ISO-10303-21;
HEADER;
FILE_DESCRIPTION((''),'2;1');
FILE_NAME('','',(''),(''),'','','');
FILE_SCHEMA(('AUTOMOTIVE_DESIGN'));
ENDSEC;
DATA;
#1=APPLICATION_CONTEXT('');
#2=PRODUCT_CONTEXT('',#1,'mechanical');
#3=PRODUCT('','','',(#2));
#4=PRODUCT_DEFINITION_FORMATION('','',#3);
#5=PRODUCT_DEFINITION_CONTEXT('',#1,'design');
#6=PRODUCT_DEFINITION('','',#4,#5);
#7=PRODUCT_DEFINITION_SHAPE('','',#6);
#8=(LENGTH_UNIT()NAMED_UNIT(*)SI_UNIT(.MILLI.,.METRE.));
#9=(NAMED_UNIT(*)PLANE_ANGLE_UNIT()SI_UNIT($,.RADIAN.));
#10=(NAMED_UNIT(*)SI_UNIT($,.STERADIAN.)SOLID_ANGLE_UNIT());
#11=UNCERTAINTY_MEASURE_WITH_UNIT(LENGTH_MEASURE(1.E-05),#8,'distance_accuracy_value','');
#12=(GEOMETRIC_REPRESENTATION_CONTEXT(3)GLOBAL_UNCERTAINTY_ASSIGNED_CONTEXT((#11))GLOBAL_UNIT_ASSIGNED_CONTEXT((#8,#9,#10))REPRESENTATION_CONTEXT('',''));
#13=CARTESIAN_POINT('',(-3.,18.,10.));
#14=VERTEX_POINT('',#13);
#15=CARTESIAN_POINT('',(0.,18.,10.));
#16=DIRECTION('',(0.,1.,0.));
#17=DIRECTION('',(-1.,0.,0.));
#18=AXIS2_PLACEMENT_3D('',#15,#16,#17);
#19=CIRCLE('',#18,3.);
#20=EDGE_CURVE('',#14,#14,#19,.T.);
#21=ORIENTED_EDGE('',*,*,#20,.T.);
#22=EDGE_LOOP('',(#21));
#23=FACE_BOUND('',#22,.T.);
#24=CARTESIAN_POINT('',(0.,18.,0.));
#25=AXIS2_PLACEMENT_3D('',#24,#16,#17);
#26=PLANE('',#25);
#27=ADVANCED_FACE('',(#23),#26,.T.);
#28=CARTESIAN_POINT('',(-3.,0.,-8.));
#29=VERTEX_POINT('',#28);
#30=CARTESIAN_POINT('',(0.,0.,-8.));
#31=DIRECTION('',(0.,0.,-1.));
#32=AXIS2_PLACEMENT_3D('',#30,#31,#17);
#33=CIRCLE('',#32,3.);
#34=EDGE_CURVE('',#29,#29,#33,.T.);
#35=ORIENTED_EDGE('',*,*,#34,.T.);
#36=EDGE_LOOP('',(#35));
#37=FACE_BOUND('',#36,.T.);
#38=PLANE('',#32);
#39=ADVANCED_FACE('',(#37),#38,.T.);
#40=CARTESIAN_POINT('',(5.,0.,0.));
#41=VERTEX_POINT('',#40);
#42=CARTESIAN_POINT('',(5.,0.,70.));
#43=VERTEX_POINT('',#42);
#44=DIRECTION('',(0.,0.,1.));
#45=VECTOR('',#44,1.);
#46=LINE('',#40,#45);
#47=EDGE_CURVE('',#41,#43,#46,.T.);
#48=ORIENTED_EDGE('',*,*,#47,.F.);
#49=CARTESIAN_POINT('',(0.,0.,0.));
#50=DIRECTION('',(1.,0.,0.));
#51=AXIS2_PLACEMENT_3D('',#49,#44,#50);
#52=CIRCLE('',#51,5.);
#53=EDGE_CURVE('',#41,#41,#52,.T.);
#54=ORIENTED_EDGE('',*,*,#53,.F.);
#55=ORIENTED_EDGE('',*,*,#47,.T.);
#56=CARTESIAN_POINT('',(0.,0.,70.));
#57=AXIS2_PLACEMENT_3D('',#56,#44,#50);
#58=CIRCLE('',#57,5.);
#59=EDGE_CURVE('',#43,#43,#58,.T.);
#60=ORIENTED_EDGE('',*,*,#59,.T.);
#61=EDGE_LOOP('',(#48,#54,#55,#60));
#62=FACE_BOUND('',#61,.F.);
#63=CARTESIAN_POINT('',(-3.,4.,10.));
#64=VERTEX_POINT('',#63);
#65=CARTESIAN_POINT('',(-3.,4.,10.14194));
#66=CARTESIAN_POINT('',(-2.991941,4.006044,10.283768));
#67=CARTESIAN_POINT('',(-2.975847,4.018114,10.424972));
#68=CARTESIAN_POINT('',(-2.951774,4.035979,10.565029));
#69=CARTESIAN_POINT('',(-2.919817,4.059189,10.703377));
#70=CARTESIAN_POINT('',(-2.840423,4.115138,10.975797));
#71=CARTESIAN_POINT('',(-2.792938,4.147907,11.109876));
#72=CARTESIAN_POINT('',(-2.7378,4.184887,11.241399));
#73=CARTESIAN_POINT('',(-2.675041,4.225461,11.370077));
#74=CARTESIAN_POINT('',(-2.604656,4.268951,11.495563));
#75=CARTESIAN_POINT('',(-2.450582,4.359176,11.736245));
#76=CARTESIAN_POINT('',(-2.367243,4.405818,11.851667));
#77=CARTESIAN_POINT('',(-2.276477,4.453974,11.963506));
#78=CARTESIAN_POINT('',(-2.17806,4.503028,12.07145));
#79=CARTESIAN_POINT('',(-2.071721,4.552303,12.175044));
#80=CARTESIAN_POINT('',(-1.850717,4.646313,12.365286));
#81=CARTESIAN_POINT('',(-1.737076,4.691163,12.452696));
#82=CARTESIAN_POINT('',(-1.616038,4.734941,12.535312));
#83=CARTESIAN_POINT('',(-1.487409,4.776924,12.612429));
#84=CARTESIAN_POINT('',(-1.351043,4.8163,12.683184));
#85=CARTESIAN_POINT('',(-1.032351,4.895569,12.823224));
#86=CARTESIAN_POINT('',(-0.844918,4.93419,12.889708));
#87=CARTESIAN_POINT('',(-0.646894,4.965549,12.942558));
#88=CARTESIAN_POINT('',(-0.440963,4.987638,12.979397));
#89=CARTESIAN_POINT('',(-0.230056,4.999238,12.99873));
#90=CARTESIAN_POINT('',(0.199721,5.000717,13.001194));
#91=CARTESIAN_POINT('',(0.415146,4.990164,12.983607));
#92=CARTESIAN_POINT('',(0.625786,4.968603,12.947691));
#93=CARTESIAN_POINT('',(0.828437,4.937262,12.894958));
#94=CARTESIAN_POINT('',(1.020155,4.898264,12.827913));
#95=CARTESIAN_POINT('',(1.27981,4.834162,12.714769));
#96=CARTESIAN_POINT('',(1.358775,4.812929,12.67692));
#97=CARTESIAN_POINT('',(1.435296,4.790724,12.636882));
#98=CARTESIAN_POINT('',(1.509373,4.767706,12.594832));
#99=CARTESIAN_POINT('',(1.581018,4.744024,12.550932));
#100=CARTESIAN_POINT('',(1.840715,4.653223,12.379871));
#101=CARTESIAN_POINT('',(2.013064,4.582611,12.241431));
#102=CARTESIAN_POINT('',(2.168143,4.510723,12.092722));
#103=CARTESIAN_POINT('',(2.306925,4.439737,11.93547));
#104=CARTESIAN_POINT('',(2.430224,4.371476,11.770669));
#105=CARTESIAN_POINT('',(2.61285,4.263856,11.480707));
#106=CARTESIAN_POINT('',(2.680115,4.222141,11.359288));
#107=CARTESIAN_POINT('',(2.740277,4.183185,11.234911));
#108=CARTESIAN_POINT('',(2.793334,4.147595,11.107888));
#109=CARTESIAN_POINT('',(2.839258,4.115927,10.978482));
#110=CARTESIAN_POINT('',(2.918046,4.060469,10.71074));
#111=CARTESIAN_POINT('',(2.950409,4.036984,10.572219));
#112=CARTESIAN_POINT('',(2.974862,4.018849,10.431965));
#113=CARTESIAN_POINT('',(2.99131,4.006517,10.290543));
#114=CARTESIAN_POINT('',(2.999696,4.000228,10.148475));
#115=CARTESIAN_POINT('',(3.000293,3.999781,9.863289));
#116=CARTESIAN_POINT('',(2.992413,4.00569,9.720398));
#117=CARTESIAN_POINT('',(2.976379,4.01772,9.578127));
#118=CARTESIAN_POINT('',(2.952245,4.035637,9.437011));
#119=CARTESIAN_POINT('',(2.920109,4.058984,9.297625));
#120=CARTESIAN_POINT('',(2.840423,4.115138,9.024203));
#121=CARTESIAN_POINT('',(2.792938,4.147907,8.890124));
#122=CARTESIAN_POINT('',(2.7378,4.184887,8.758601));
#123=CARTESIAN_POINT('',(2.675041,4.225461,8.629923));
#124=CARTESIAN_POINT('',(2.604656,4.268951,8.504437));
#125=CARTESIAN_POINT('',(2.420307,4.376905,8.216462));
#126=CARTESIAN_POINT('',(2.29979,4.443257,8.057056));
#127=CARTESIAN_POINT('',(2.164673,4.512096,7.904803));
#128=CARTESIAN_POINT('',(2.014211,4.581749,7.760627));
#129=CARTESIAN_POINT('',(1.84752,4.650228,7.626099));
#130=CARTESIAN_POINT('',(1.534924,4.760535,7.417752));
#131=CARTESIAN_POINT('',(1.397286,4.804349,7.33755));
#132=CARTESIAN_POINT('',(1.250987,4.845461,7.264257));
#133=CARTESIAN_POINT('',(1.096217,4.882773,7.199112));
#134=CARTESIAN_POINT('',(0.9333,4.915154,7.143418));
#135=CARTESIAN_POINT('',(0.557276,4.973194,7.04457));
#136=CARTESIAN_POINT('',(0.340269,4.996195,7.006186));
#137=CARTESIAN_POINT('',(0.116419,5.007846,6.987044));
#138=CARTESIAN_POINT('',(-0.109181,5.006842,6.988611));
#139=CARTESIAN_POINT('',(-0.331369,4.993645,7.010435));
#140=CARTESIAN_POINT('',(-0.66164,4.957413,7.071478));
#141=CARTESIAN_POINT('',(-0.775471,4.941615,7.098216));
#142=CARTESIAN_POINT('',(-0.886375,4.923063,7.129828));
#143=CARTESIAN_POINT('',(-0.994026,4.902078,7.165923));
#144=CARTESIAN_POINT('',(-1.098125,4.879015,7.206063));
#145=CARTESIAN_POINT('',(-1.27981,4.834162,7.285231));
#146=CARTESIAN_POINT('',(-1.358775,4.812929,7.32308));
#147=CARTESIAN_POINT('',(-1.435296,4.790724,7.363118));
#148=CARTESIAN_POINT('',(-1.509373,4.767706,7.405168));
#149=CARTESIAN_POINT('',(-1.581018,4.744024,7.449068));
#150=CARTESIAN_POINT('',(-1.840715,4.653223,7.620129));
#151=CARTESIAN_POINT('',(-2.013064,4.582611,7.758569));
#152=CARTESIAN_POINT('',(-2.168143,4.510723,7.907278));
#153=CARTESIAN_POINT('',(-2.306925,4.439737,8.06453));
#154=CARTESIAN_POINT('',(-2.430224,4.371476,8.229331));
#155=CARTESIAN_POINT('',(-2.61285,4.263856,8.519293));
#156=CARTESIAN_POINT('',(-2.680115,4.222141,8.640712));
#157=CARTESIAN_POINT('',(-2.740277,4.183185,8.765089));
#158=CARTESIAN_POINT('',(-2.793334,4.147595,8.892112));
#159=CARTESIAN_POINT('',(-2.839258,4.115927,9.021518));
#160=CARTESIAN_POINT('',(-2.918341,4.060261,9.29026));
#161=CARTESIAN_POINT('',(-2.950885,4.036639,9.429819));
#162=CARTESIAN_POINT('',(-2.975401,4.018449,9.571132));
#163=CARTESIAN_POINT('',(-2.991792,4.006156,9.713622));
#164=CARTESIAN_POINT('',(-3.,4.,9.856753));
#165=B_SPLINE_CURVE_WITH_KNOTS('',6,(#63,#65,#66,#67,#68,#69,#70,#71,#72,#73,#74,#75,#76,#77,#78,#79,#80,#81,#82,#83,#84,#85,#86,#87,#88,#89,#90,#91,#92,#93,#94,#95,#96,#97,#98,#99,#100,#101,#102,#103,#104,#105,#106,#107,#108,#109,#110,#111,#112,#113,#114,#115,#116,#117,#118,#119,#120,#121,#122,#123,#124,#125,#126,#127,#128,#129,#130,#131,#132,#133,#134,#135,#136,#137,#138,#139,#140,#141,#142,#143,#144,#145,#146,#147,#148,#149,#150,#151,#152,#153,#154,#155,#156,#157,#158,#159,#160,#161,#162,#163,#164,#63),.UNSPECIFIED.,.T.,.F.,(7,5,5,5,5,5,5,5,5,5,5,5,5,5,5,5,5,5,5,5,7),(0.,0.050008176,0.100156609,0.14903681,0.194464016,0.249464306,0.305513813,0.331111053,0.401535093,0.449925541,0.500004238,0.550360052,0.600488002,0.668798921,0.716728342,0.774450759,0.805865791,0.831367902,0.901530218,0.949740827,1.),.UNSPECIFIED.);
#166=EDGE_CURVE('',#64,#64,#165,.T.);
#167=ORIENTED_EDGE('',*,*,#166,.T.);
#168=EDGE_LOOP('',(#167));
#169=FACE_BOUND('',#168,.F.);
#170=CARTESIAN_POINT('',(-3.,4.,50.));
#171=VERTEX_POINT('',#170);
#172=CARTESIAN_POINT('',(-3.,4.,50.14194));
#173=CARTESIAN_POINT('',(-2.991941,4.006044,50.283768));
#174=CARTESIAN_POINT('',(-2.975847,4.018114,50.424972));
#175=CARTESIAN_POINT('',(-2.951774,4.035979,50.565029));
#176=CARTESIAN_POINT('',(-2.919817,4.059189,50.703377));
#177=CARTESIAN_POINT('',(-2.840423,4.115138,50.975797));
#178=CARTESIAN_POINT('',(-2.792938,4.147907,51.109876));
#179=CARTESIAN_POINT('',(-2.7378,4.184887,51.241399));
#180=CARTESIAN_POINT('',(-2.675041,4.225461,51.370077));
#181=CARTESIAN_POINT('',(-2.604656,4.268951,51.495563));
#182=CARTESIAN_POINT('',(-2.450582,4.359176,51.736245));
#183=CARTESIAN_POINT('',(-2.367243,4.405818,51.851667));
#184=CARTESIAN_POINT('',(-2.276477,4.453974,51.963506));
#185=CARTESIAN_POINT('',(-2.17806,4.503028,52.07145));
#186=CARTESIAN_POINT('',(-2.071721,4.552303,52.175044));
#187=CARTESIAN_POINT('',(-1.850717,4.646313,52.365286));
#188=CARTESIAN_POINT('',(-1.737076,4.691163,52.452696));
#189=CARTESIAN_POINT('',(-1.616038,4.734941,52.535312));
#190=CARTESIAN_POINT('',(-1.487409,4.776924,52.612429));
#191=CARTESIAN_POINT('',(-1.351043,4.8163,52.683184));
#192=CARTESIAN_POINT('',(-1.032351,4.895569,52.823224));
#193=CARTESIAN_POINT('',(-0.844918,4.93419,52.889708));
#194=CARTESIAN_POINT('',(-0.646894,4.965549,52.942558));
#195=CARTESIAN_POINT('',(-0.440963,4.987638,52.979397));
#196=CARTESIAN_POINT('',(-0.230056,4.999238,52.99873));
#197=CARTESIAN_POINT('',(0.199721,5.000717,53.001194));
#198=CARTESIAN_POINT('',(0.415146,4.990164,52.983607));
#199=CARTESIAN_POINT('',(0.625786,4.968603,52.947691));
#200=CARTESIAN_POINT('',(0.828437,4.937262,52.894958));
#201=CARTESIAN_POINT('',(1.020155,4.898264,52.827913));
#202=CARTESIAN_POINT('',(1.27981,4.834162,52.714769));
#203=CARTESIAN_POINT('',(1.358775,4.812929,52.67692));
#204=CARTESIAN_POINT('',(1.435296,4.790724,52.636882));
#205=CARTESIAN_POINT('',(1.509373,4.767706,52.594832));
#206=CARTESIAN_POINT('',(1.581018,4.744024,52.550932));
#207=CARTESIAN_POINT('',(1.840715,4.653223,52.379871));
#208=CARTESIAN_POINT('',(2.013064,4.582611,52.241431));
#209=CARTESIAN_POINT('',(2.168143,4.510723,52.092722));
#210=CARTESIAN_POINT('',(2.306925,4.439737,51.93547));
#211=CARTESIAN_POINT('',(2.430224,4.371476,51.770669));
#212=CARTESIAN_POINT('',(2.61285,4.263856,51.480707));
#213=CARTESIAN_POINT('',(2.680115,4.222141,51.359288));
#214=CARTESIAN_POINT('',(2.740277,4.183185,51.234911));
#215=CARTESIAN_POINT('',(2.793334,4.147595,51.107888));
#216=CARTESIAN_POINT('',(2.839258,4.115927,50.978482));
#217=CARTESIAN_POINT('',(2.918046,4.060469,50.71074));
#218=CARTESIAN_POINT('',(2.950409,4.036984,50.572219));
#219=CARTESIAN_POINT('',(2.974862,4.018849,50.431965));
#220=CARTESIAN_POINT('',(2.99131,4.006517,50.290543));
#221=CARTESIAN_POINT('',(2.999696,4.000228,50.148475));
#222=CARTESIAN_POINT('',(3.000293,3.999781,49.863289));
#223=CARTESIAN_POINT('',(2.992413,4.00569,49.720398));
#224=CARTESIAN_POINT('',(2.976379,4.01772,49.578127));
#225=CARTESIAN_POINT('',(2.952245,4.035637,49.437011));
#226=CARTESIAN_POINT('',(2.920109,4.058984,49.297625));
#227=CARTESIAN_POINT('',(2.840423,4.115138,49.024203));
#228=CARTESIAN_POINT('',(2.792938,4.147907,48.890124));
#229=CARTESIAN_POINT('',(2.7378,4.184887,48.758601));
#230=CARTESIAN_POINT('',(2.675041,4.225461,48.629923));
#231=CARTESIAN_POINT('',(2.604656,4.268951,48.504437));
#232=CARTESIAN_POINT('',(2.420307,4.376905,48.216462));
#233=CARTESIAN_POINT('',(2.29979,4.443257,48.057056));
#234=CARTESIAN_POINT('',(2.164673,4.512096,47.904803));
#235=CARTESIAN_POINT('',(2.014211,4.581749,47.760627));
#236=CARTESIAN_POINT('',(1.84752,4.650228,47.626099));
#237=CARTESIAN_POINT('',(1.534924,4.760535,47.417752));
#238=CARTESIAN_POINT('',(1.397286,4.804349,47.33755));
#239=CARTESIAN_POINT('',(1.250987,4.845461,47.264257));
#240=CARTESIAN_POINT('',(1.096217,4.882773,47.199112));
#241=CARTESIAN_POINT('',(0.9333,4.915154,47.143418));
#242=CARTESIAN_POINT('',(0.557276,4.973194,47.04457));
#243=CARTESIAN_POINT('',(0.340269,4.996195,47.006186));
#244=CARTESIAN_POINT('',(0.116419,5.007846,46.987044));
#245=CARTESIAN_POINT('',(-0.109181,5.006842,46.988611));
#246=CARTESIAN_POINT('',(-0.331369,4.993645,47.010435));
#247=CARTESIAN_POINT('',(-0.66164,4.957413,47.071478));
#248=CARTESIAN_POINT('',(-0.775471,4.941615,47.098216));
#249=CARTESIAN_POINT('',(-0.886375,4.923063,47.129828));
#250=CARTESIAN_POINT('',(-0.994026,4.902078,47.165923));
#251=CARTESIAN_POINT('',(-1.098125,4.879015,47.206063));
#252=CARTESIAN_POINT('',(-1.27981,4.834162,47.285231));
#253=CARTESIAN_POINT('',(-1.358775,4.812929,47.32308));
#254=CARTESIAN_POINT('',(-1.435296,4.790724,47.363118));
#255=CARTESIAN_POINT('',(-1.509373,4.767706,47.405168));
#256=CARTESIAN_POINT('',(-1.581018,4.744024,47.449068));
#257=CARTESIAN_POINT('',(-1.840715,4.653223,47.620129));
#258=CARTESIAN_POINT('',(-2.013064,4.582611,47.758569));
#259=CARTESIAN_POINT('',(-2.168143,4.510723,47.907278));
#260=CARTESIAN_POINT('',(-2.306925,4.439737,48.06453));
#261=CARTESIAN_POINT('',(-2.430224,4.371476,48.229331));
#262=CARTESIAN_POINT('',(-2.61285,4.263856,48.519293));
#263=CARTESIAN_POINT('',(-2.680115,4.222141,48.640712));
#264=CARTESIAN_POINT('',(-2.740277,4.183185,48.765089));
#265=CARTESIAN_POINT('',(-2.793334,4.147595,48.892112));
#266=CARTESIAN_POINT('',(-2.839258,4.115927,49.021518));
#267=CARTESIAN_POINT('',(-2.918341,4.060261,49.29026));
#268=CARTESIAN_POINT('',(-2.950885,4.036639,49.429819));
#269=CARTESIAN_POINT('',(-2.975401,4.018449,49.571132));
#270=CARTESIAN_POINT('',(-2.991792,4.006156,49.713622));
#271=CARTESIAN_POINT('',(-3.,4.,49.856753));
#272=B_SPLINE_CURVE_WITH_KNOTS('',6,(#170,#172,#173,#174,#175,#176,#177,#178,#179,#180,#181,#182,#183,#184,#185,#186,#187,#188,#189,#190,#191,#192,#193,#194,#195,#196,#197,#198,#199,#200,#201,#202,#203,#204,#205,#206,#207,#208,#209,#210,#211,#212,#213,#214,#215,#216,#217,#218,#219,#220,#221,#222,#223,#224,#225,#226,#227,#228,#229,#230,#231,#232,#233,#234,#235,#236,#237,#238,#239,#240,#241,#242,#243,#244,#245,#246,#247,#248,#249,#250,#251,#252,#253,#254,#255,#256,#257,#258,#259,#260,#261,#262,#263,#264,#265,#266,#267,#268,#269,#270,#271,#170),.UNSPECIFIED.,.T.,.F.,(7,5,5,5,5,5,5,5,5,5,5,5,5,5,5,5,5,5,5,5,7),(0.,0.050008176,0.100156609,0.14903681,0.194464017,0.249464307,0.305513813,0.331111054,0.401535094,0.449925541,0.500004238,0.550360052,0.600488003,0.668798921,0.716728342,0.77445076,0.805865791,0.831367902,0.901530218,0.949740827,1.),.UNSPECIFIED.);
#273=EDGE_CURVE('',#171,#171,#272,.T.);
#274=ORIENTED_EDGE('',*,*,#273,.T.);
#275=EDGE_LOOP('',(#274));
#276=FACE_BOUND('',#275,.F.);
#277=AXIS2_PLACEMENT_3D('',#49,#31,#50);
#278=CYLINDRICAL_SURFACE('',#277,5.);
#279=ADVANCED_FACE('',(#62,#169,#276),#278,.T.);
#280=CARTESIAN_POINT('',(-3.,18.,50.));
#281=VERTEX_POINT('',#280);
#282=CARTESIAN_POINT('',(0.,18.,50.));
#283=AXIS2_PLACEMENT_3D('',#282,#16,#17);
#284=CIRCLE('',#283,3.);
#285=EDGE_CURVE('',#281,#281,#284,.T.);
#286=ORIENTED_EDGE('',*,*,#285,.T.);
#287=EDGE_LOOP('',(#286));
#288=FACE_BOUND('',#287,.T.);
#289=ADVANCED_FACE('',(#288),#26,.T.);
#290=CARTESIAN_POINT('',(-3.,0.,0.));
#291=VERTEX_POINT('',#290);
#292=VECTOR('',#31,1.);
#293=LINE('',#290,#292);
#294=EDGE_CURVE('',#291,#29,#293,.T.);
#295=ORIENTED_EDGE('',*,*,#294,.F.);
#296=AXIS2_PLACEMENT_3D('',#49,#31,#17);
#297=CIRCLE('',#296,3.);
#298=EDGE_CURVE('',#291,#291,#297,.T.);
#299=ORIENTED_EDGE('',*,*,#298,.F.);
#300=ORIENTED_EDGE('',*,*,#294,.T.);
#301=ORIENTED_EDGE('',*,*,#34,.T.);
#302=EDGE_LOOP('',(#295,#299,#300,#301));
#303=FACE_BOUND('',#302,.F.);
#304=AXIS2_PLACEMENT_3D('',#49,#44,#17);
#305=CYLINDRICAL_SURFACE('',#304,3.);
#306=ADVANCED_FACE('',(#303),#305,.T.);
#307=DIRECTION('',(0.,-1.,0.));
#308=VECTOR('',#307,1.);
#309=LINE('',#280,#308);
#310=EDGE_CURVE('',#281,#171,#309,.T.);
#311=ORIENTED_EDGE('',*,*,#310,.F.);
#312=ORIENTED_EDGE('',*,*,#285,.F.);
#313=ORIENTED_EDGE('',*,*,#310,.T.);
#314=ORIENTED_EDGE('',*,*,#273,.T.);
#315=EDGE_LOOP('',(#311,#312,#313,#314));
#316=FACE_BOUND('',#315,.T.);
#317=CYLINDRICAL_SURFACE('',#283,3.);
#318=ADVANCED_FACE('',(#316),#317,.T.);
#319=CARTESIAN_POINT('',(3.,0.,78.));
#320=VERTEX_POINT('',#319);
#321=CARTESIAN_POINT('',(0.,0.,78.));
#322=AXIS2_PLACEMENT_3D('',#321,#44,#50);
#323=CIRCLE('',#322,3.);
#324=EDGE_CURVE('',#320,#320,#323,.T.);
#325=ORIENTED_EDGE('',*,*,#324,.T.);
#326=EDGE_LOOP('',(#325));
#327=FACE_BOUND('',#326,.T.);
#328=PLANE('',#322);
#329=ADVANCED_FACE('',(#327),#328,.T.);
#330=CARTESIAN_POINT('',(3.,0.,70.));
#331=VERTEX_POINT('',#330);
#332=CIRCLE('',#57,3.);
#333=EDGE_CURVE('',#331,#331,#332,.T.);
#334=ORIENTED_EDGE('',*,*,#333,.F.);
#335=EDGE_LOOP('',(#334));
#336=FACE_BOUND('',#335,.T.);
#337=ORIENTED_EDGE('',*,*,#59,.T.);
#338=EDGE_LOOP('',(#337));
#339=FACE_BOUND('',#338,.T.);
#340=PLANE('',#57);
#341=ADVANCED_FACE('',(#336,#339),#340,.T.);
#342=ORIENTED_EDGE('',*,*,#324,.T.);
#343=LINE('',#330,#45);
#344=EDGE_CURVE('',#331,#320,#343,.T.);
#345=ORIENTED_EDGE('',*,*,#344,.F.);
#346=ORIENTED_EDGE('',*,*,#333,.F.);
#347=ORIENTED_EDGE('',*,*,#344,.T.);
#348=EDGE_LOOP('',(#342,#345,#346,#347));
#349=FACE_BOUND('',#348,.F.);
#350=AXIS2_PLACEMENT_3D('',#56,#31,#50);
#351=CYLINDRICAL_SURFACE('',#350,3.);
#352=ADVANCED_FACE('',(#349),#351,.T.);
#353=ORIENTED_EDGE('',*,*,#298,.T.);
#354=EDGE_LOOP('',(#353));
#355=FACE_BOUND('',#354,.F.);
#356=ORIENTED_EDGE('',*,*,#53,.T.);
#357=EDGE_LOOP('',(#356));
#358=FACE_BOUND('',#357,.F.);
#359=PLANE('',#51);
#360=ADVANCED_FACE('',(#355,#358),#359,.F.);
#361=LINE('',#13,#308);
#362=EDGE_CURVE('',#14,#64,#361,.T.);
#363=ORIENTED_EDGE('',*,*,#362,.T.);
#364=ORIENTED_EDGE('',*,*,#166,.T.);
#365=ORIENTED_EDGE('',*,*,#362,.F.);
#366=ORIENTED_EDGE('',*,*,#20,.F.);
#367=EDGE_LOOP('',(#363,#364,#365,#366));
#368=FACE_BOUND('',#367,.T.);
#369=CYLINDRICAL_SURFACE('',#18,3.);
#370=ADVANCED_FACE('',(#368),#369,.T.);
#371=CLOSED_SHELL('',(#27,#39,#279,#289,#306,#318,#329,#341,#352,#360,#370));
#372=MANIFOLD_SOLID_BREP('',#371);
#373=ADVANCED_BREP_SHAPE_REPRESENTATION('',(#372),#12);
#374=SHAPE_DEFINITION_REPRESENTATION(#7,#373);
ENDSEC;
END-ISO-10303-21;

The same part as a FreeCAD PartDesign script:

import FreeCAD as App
import Part
import Sketcher
from FreeCAD import Vector
Q = App.Units.Quantity

doc = App.newDocument("Part")
body = doc.addObject("PartDesign::Body", "Body")

# Sketch on XY plane
sketch1 = doc.addObject("Sketcher::SketchObject", "Sketch")
body.addObject(sketch1)
sketch1.AttachmentSupport = (doc.XY_Plane, [""])
sketch1.MapMode = "FlatFace"
sketch1.addGeometry(Part.Circle(Vector(0, 0, 0), Vector(0, 0, 1), 5), False)
sketch1.addConstraint(Sketcher.Constraint("Coincident", 0, 3, -1, 1))
sketch1.addConstraint(Sketcher.Constraint("Diameter", 0, Q("10 mm")))
pad1 = doc.addObject("PartDesign::Pad", "Pad")
body.addObject(pad1)
pad1.Profile = sketch1
pad1.Length = 70

# Sketch on XY plane
sketch2 = doc.addObject("Sketcher::SketchObject", "Sketch001")
body.addObject(sketch2)
sketch2.AttachmentSupport = (doc.XY_Plane, [""])
sketch2.MapMode = "FlatFace"
sketch2.AttachmentOffset = App.Placement(Vector(0, 0, 70), App.Rotation())
sketch2.addGeometry(Part.Circle(Vector(0, 0, 0), Vector(0, 0, 1), 3), False)
sketch2.addConstraint(Sketcher.Constraint("Coincident", 0, 3, -1, 1))
sketch2.addConstraint(Sketcher.Constraint("Diameter", 0, Q("6 mm")))
pad2 = doc.addObject("PartDesign::Pad", "Pad001")
body.addObject(pad2)
pad2.Profile = sketch2
pad2.Length = 8

# Sketch on XY plane
sketch3 = doc.addObject("Sketcher::SketchObject", "Sketch002")
body.addObject(sketch3)
sketch3.AttachmentSupport = (doc.XY_Plane, [""])
sketch3.MapMode = "FlatFace"
sketch3.addGeometry(Part.Circle(Vector(0, 0, 0), Vector(0, 0, 1), 3), False)
sketch3.addConstraint(Sketcher.Constraint("Coincident", 0, 3, -1, 1))
sketch3.addConstraint(Sketcher.Constraint("Diameter", 0, Q("6 mm")))
pad3 = doc.addObject("PartDesign::Pad", "Pad002")
body.addObject(pad3)
pad3.Profile = sketch3
pad3.Length = 8
pad3.Reversed = True

# Sketch on XZ plane
sketch4 = doc.addObject("Sketcher::SketchObject", "Sketch003")
body.addObject(sketch4)
sketch4.AttachmentSupport = (doc.XZ_Plane, [""])
sketch4.MapMode = "FlatFace"
sketch4.AttachmentOffset = App.Placement(Vector(0, 0, -18), App.Rotation())
sketch4.addGeometry(Part.Circle(Vector(0, 10, 0), Vector(0, 0, 1), 3), False)
sketch4.addGeometry(Part.Circle(Vector(0, 50, 0), Vector(0, 0, 1), 3), False)
sketch4.addConstraint(Sketcher.Constraint("Equal", 0, 1))
sketch4.addConstraint(Sketcher.Constraint("PointOnObject", 0, 3, -2))
sketch4.addConstraint(Sketcher.Constraint("PointOnObject", 1, 3, -2))
sketch4.addConstraint(Sketcher.Constraint("Diameter", 0, Q("6 mm")))
sketch4.addConstraint(Sketcher.Constraint("DistanceY", -1, 1, 0, 3, Q("10 mm")))
sketch4.addConstraint(Sketcher.Constraint("DistanceY", 0, 3, 1, 3, Q("40 mm")))
pad4 = doc.addObject("PartDesign::Pad", "Pad003")
body.addObject(pad4)
pad4.Profile = sketch4
pad4.Length = 14

doc.recompute()
